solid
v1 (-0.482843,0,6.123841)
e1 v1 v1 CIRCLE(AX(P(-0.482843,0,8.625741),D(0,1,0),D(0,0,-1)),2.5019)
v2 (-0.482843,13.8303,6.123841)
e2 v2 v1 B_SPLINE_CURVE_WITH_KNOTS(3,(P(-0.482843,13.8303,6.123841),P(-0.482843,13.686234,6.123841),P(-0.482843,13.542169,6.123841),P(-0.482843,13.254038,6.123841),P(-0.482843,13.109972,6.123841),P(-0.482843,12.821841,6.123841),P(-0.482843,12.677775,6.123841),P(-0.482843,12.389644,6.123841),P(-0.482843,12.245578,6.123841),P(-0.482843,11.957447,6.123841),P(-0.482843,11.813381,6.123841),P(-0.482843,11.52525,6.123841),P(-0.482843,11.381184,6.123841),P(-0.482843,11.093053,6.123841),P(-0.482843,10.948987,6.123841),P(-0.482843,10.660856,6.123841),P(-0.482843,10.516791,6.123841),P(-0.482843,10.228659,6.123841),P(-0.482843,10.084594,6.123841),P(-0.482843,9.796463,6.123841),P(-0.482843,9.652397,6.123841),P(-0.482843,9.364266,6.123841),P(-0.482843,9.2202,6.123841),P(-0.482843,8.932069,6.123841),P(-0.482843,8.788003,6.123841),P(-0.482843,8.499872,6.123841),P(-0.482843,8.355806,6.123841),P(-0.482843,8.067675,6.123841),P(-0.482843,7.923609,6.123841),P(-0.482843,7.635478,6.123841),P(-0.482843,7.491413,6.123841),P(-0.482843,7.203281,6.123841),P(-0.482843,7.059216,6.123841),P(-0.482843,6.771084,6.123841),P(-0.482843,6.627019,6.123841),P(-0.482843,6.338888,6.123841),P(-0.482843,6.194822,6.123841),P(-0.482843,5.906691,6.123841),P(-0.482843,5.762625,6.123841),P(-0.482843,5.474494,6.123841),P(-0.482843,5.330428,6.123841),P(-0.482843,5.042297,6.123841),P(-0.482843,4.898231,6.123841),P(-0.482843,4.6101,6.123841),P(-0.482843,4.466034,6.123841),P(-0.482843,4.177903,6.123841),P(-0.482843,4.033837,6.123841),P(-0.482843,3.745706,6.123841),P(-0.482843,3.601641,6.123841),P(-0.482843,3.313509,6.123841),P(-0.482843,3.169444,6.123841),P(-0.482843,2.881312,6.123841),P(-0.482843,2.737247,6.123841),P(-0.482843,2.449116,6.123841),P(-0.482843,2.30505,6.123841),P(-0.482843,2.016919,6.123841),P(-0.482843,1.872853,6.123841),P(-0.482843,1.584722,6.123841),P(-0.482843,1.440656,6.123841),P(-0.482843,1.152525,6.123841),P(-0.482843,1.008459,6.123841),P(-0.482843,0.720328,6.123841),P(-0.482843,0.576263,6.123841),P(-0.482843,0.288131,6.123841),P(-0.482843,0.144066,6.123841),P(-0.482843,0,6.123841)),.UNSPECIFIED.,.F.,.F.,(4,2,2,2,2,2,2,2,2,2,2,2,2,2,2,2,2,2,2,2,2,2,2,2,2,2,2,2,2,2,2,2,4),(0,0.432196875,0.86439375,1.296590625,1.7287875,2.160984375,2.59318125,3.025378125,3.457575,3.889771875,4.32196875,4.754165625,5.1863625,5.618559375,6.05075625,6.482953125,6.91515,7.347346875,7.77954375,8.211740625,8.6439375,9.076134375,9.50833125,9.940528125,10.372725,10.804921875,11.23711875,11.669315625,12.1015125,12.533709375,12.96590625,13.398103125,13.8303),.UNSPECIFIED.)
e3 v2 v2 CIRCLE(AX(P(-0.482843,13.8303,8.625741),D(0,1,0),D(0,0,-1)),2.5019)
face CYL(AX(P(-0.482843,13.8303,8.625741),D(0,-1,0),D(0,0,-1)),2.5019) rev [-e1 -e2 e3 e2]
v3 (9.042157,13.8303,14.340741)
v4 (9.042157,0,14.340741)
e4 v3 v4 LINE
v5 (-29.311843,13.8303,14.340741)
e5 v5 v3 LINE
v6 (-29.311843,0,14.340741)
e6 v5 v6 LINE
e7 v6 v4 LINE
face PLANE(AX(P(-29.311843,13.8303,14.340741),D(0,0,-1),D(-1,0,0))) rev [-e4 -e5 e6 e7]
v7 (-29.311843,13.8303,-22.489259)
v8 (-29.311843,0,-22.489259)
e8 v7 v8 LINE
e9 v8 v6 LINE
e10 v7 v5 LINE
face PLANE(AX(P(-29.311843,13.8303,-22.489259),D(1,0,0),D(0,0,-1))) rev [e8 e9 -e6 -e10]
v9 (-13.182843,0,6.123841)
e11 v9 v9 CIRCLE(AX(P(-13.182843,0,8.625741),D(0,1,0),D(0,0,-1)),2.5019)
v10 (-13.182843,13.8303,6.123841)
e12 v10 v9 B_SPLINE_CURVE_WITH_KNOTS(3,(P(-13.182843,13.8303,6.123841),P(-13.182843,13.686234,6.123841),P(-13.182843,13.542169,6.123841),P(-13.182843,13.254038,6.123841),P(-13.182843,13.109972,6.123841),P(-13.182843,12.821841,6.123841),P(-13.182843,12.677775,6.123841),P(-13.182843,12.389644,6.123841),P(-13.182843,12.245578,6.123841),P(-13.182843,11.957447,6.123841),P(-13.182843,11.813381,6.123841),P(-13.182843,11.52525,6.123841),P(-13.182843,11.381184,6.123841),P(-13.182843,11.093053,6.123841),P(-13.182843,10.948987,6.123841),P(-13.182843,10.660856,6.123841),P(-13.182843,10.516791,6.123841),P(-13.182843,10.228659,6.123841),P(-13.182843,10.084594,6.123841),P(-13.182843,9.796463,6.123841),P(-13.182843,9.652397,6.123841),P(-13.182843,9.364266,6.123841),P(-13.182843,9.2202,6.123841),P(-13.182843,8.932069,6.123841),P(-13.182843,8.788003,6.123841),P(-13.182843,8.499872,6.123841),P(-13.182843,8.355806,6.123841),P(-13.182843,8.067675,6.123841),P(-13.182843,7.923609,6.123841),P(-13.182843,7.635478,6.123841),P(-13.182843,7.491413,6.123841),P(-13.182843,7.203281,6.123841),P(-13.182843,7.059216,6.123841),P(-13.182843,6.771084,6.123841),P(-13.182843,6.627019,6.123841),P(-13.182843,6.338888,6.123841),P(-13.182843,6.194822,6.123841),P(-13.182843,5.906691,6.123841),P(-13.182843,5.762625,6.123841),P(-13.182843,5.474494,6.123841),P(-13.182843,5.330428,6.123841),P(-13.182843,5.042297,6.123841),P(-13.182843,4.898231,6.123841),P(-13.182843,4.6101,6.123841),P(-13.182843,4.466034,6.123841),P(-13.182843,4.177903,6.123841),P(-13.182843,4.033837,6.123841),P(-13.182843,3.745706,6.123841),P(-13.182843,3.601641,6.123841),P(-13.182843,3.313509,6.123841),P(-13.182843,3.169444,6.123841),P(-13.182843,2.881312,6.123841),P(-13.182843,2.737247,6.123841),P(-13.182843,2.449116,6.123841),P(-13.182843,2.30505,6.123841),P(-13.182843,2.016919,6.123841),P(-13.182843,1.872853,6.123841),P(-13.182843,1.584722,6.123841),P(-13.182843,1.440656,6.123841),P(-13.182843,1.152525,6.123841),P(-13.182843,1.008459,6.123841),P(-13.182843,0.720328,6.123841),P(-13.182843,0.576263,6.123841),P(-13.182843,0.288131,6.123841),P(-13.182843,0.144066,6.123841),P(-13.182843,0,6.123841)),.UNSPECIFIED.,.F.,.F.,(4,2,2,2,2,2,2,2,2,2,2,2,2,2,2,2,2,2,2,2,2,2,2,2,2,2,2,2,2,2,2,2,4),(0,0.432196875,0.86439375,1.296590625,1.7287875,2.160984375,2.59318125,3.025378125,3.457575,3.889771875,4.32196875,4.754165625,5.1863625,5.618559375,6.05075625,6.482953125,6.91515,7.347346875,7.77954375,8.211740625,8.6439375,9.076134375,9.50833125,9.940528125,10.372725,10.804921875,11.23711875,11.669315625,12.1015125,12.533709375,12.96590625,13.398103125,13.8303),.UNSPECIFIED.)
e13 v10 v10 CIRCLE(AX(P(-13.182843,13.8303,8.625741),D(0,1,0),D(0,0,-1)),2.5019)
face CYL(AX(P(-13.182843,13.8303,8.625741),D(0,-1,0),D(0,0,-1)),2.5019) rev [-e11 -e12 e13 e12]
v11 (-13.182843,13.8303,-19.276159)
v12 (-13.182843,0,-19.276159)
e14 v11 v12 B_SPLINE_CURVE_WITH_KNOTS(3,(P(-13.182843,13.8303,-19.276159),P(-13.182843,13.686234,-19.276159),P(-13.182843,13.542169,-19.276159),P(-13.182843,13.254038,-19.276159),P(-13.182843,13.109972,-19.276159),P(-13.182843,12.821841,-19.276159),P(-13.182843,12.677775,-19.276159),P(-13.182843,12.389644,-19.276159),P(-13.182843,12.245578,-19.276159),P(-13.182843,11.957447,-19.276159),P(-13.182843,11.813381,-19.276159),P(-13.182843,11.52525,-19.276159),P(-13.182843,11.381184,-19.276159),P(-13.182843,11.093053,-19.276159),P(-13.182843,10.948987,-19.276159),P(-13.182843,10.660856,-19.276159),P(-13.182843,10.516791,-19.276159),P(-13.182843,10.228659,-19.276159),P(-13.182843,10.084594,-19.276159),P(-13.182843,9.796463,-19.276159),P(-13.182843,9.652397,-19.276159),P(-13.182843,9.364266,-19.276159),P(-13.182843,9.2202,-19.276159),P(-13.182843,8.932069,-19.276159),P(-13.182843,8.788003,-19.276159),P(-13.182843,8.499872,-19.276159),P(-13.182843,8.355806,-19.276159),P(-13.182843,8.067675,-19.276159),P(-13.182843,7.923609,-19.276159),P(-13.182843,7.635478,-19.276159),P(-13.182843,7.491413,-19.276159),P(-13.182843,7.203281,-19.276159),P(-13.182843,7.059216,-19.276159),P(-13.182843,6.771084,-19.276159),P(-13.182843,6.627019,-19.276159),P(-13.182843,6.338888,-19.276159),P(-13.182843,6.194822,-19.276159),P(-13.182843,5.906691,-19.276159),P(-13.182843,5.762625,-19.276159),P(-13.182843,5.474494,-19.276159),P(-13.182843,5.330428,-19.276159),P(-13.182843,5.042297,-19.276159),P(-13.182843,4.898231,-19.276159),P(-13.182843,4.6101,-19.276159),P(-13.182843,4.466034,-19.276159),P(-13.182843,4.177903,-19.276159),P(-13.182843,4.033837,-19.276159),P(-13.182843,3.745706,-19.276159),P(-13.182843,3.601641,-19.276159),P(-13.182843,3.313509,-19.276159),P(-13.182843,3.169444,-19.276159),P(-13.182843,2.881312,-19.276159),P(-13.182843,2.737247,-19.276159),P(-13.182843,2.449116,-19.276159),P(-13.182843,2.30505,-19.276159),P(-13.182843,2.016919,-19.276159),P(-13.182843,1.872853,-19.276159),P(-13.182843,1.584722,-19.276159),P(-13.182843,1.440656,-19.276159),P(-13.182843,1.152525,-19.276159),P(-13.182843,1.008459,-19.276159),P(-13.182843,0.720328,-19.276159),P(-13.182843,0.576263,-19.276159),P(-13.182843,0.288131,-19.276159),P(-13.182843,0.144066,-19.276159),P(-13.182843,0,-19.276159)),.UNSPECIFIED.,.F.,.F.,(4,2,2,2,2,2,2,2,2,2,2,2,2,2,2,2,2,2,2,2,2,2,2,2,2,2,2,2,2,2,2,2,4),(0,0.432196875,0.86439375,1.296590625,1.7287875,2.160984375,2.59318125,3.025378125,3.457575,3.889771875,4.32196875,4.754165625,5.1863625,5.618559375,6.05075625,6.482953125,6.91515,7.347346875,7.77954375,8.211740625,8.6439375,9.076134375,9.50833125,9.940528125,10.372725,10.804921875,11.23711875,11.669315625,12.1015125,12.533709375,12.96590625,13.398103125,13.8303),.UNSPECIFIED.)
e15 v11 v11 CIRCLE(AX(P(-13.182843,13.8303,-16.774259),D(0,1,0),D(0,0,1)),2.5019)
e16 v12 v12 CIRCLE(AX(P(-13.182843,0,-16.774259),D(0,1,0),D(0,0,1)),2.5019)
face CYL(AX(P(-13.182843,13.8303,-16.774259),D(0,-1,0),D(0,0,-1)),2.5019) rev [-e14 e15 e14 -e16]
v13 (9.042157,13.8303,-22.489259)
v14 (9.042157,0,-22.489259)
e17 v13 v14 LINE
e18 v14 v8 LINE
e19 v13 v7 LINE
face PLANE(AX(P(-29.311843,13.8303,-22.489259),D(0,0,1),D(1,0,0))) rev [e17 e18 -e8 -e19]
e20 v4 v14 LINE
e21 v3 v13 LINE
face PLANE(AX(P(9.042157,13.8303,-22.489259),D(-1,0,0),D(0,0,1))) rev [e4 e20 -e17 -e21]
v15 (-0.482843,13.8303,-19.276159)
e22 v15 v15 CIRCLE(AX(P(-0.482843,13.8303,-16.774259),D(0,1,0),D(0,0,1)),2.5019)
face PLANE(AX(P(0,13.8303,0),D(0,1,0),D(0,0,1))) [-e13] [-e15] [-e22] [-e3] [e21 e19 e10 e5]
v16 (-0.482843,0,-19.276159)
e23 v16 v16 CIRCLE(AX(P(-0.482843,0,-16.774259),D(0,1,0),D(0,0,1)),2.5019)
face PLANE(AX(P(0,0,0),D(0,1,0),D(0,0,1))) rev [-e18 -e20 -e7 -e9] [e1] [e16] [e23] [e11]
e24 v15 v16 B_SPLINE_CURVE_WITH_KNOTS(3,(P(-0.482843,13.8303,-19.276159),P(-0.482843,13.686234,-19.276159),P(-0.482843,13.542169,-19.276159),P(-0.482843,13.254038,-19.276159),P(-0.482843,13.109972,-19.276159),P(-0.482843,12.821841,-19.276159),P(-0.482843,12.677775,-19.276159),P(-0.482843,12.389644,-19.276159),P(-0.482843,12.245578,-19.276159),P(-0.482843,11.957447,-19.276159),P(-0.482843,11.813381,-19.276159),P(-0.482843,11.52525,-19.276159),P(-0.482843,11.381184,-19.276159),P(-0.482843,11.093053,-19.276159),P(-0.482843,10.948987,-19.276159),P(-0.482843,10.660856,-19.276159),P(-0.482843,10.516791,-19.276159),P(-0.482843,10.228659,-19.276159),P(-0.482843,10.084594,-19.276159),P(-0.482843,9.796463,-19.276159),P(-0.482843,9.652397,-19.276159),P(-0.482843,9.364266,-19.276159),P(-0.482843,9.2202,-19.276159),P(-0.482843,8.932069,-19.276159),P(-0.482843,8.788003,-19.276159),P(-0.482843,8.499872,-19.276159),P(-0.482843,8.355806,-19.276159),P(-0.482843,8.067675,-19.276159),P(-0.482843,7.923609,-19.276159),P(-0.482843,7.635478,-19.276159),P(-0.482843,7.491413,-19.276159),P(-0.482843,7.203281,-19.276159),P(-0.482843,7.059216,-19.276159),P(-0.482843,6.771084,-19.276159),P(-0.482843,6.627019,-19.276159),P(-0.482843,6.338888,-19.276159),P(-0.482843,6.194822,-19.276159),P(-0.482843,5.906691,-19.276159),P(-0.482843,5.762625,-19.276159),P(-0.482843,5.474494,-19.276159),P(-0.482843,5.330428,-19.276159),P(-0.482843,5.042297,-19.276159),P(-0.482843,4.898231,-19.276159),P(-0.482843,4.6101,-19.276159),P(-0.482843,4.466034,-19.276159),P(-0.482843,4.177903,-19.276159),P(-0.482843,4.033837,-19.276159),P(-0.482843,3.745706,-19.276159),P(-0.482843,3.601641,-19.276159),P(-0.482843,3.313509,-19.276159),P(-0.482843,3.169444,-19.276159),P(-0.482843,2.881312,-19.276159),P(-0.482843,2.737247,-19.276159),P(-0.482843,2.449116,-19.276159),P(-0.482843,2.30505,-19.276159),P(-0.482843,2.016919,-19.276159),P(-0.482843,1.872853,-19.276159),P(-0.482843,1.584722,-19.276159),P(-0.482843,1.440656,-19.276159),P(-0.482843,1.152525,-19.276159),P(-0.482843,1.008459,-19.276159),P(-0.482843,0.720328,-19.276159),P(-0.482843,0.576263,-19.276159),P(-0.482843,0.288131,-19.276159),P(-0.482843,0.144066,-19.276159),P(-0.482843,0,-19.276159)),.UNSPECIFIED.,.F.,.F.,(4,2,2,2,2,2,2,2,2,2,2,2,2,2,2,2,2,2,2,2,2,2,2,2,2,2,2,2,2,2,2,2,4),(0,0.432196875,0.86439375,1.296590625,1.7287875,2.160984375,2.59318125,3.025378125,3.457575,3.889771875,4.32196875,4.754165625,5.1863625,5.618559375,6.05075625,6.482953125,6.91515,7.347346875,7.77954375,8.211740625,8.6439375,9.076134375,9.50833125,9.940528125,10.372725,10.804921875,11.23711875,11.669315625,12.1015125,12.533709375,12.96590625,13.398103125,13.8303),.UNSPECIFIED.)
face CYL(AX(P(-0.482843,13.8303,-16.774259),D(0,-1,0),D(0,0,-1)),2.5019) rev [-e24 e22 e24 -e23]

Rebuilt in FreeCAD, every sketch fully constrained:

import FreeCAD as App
import Part
import Sketcher

V = App.Vector
Q = App.Units.Quantity


def add_polygon(sketch, points):
    """Adds a closed chain of lines whose ends are joined by coincident constraints."""
    first, n = sketch.GeometryCount, len(points)
    for a, b in zip(points, points[1:] + points[:1]):
        sketch.addGeometry(Part.LineSegment(App.Vector(*a, 0), App.Vector(*b, 0)), False)
    for i in range(n):
        sketch.addConstraint(Sketcher.Constraint("Coincident", first + i, 2, first + (i + 1) % n, 1))

doc = App.newDocument("Part")
body = doc.addObject("PartDesign::Body", "Body")

# Sketch on XZ plane
sketch1 = body.newObject("Sketcher::SketchObject", "Sketch")
sketch1.AttachmentSupport = (doc.getObject("XZ_Plane"), [""])
sketch1.MapMode = "FlatFace"
add_polygon(sketch1, [(-29.3, -22.5), (-29.3, 14.3), (9, 14.3), (9, -22.5)])  # lines 0-3
sketch1.addGeometry(Part.Circle(V(-13.2, 8.6, 0), V(0, 0, 1), 2.5), False)  # 4
sketch1.addGeometry(Part.Circle(V(-0.5, 8.6, 0), V(0, 0, 1), 2.5), False)  # 5
sketch1.addGeometry(Part.Circle(V(-13.2, -16.8, 0), V(0, 0, 1), 2.5), False)  # 6
sketch1.addGeometry(Part.Circle(V(-0.5, -16.8, 0), V(0, 0, 1), 2.5), False)  # 7
sketch1.addConstraint(Sketcher.Constraint("Vertical", 0))
sketch1.addConstraint(Sketcher.Constraint("Horizontal", 1))
sketch1.addConstraint(Sketcher.Constraint("Vertical", 2))
sketch1.addConstraint(Sketcher.Constraint("Horizontal", 3))
sketch1.addConstraint(Sketcher.Constraint("Equal", 4, 5))
sketch1.addConstraint(Sketcher.Constraint("Equal", 5, 6))
sketch1.addConstraint(Sketcher.Constraint("Equal", 6, 7))
sketch1.addConstraint(Sketcher.Constraint("Horizontal", 4, 3, 5, 3))
sketch1.addConstraint(Sketcher.Constraint("Horizontal", 6, 3, 7, 3))
sketch1.addConstraint(Sketcher.Constraint("Vertical", 4, 3, 6, 3))
sketch1.addConstraint(Sketcher.Constraint("Vertical", 5, 3, 7, 3))
sketch1.addConstraint(Sketcher.Constraint("Diameter", 4, Q("0.197 in")))
sketch1.addConstraint(Sketcher.Constraint("DistanceY", 6, 3, 4, 3, Q("1 in")))
sketch1.addConstraint(Sketcher.Constraint("DistanceX", 1, 1, 1, 2, Q("1.51 in")))
sketch1.addConstraint(Sketcher.Constraint("DistanceY", 0, 1, 0, 2, Q("1.45 in")))
sketch1.addConstraint(Sketcher.Constraint("DistanceX", 4, 3, 5, 3, Q("0.5 in")))
sketch1.addConstraint(Sketcher.Constraint("DistanceX", 0, 2, 4, 3, Q("0.635 in")))
sketch1.addConstraint(Sketcher.Constraint("DistanceY", 4, 3, 0, 2, Q("0.225 in")))
sketch1.addConstraint(Sketcher.Constraint("DistanceY", -1, 1, 4, 3, 8.625741))
sketch1.addConstraint(Sketcher.Constraint("DistanceX", 4, 3, -1, 1, 13.182843))
pad1 = body.newObject("PartDesign::Pad", "Pad")
pad1.Profile = sketch1
pad1.Length = Q("0.5445 in")
pad1.Reversed = True

doc.recompute()
